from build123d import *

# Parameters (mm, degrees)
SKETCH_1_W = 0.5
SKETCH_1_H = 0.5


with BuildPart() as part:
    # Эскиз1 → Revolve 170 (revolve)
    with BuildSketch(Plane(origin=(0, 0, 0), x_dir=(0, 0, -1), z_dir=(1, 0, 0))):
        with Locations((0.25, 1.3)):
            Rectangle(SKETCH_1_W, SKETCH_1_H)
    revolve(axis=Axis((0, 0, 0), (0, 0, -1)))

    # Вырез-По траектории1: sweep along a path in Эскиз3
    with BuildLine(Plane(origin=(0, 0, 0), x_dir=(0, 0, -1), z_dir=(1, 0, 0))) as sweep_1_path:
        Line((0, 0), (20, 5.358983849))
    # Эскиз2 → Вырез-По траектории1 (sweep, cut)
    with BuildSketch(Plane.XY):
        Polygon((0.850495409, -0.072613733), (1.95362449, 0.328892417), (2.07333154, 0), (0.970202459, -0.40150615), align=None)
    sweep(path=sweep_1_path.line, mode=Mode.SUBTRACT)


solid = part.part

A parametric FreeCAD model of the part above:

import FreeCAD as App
import Part
import Sketcher

V = App.Vector
Q = App.Units.Quantity


def add_polygon(sketch, points):
    """Adds a closed chain of lines whose ends are joined by coincident constraints."""
    first, n = sketch.GeometryCount, len(points)
    for a, b in zip(points, points[1:] + points[:1]):
        sketch.addGeometry(Part.LineSegment(App.Vector(*a, 0), App.Vector(*b, 0)), False)
    for i in range(n):
        sketch.addConstraint(Sketcher.Constraint("Coincident", first + i, 2, first + (i + 1) % n, 1))

doc = App.newDocument("Part")
body = doc.addObject("PartDesign::Body", "Body")

# Sketch on YZ plane
sketch1 = doc.addObject("Sketcher::SketchObject", "Sketch")
body.addObject(sketch1)
sketch1.AttachmentSupport = (doc.YZ_Plane, [""])
sketch1.MapMode = "FlatFace"
add_polygon(sketch1, [(1.55, 0), (1.05, 0), (1.05, -0.5), (1.55, -0.5)])  # lines 0-3
sketch1.addConstraint([
    Sketcher.Constraint("Horizontal", 0),
    Sketcher.Constraint("Vertical", 1),
    Sketcher.Constraint("Horizontal", 2),
    Sketcher.Constraint("Vertical", 3),
    Sketcher.Constraint("PointOnObject", 0, 2, -1),
    Sketcher.Constraint("Equal", 2, 1),
    Sketcher.Constraint("DistanceX", 0, 2, 0, 1, Q("0.5 mm")),
    Sketcher.Constraint("DistanceX", -1, 1, 0, 2, Q("1.05 mm")),
])
revolution = doc.addObject("PartDesign::Revolution", "Revolution")
body.addObject(revolution)
revolution.Profile = sketch1
revolution.ReferenceAxis = (sketch1, ["V_Axis"])
revolution.Angle = 360

# Sketch on XY plane
sketch2 = doc.addObject("Sketcher::SketchObject", "Sketch001")
body.addObject(sketch2)
sketch2.AttachmentSupport = (doc.XY_Plane, [""])
sketch2.MapMode = "FlatFace"
add_polygon(sketch2, [(1.953624, 0.328892), (0.850495, -0.072614), (0.970202, -0.401506), (2.073332, 0)])  # lines 0-3
sketch2.addConstraint([
    Sketcher.Constraint("PointOnObject", 2, 2, -1),
    Sketcher.Constraint("Perpendicular", 0, 1),
    Sketcher.Constraint("Perpendicular", 1, 2),
    Sketcher.Constraint("Perpendicular", 2, 3),
    Sketcher.Constraint("Angle", 0, Q("-160 deg")),
    Sketcher.Constraint("Distance", 1, Q("0.35 mm")),
    Sketcher.Constraint("DistanceY", 1, 2, 3, 2, Q("0.730399 mm")),
    Sketcher.Constraint("DistanceX", -1, 1, 2, 2, Q("2.073332 mm")),
])

# Sketch on an angled plane
sketch3 = doc.addObject("Sketcher::SketchObject", "Sketch002")
body.addObject(sketch3)
sketch3.Placement = App.Placement(V(0, 0, 0), App.Rotation(V(0, -0.258819045, 0.965925826), V(0.999999999, 0, 0), V(0, 0.965925826, 0.258819045), "ZXY"))
sketch3.addGeometry(Part.LineSegment(V(0, 0, 0), V(-20.705524, 0, 0)), False)
sketch3.addConstraint([
    Sketcher.Constraint("Horizontal", 0),
    Sketcher.Constraint("Coincident", 0, 1, -1, 1),
    Sketcher.Constraint("DistanceX", 0, 2, 0, 1, Q("20.705524 mm")),
])
doc.recompute()

subtractivepipe = doc.addObject("PartDesign::SubtractivePipe", "SubtractivePipe")
body.addObject(subtractivepipe)
subtractivepipe.Profile = sketch2
subtractivepipe.Spine = (sketch3, ["Edge1"])

doc.recompute()
